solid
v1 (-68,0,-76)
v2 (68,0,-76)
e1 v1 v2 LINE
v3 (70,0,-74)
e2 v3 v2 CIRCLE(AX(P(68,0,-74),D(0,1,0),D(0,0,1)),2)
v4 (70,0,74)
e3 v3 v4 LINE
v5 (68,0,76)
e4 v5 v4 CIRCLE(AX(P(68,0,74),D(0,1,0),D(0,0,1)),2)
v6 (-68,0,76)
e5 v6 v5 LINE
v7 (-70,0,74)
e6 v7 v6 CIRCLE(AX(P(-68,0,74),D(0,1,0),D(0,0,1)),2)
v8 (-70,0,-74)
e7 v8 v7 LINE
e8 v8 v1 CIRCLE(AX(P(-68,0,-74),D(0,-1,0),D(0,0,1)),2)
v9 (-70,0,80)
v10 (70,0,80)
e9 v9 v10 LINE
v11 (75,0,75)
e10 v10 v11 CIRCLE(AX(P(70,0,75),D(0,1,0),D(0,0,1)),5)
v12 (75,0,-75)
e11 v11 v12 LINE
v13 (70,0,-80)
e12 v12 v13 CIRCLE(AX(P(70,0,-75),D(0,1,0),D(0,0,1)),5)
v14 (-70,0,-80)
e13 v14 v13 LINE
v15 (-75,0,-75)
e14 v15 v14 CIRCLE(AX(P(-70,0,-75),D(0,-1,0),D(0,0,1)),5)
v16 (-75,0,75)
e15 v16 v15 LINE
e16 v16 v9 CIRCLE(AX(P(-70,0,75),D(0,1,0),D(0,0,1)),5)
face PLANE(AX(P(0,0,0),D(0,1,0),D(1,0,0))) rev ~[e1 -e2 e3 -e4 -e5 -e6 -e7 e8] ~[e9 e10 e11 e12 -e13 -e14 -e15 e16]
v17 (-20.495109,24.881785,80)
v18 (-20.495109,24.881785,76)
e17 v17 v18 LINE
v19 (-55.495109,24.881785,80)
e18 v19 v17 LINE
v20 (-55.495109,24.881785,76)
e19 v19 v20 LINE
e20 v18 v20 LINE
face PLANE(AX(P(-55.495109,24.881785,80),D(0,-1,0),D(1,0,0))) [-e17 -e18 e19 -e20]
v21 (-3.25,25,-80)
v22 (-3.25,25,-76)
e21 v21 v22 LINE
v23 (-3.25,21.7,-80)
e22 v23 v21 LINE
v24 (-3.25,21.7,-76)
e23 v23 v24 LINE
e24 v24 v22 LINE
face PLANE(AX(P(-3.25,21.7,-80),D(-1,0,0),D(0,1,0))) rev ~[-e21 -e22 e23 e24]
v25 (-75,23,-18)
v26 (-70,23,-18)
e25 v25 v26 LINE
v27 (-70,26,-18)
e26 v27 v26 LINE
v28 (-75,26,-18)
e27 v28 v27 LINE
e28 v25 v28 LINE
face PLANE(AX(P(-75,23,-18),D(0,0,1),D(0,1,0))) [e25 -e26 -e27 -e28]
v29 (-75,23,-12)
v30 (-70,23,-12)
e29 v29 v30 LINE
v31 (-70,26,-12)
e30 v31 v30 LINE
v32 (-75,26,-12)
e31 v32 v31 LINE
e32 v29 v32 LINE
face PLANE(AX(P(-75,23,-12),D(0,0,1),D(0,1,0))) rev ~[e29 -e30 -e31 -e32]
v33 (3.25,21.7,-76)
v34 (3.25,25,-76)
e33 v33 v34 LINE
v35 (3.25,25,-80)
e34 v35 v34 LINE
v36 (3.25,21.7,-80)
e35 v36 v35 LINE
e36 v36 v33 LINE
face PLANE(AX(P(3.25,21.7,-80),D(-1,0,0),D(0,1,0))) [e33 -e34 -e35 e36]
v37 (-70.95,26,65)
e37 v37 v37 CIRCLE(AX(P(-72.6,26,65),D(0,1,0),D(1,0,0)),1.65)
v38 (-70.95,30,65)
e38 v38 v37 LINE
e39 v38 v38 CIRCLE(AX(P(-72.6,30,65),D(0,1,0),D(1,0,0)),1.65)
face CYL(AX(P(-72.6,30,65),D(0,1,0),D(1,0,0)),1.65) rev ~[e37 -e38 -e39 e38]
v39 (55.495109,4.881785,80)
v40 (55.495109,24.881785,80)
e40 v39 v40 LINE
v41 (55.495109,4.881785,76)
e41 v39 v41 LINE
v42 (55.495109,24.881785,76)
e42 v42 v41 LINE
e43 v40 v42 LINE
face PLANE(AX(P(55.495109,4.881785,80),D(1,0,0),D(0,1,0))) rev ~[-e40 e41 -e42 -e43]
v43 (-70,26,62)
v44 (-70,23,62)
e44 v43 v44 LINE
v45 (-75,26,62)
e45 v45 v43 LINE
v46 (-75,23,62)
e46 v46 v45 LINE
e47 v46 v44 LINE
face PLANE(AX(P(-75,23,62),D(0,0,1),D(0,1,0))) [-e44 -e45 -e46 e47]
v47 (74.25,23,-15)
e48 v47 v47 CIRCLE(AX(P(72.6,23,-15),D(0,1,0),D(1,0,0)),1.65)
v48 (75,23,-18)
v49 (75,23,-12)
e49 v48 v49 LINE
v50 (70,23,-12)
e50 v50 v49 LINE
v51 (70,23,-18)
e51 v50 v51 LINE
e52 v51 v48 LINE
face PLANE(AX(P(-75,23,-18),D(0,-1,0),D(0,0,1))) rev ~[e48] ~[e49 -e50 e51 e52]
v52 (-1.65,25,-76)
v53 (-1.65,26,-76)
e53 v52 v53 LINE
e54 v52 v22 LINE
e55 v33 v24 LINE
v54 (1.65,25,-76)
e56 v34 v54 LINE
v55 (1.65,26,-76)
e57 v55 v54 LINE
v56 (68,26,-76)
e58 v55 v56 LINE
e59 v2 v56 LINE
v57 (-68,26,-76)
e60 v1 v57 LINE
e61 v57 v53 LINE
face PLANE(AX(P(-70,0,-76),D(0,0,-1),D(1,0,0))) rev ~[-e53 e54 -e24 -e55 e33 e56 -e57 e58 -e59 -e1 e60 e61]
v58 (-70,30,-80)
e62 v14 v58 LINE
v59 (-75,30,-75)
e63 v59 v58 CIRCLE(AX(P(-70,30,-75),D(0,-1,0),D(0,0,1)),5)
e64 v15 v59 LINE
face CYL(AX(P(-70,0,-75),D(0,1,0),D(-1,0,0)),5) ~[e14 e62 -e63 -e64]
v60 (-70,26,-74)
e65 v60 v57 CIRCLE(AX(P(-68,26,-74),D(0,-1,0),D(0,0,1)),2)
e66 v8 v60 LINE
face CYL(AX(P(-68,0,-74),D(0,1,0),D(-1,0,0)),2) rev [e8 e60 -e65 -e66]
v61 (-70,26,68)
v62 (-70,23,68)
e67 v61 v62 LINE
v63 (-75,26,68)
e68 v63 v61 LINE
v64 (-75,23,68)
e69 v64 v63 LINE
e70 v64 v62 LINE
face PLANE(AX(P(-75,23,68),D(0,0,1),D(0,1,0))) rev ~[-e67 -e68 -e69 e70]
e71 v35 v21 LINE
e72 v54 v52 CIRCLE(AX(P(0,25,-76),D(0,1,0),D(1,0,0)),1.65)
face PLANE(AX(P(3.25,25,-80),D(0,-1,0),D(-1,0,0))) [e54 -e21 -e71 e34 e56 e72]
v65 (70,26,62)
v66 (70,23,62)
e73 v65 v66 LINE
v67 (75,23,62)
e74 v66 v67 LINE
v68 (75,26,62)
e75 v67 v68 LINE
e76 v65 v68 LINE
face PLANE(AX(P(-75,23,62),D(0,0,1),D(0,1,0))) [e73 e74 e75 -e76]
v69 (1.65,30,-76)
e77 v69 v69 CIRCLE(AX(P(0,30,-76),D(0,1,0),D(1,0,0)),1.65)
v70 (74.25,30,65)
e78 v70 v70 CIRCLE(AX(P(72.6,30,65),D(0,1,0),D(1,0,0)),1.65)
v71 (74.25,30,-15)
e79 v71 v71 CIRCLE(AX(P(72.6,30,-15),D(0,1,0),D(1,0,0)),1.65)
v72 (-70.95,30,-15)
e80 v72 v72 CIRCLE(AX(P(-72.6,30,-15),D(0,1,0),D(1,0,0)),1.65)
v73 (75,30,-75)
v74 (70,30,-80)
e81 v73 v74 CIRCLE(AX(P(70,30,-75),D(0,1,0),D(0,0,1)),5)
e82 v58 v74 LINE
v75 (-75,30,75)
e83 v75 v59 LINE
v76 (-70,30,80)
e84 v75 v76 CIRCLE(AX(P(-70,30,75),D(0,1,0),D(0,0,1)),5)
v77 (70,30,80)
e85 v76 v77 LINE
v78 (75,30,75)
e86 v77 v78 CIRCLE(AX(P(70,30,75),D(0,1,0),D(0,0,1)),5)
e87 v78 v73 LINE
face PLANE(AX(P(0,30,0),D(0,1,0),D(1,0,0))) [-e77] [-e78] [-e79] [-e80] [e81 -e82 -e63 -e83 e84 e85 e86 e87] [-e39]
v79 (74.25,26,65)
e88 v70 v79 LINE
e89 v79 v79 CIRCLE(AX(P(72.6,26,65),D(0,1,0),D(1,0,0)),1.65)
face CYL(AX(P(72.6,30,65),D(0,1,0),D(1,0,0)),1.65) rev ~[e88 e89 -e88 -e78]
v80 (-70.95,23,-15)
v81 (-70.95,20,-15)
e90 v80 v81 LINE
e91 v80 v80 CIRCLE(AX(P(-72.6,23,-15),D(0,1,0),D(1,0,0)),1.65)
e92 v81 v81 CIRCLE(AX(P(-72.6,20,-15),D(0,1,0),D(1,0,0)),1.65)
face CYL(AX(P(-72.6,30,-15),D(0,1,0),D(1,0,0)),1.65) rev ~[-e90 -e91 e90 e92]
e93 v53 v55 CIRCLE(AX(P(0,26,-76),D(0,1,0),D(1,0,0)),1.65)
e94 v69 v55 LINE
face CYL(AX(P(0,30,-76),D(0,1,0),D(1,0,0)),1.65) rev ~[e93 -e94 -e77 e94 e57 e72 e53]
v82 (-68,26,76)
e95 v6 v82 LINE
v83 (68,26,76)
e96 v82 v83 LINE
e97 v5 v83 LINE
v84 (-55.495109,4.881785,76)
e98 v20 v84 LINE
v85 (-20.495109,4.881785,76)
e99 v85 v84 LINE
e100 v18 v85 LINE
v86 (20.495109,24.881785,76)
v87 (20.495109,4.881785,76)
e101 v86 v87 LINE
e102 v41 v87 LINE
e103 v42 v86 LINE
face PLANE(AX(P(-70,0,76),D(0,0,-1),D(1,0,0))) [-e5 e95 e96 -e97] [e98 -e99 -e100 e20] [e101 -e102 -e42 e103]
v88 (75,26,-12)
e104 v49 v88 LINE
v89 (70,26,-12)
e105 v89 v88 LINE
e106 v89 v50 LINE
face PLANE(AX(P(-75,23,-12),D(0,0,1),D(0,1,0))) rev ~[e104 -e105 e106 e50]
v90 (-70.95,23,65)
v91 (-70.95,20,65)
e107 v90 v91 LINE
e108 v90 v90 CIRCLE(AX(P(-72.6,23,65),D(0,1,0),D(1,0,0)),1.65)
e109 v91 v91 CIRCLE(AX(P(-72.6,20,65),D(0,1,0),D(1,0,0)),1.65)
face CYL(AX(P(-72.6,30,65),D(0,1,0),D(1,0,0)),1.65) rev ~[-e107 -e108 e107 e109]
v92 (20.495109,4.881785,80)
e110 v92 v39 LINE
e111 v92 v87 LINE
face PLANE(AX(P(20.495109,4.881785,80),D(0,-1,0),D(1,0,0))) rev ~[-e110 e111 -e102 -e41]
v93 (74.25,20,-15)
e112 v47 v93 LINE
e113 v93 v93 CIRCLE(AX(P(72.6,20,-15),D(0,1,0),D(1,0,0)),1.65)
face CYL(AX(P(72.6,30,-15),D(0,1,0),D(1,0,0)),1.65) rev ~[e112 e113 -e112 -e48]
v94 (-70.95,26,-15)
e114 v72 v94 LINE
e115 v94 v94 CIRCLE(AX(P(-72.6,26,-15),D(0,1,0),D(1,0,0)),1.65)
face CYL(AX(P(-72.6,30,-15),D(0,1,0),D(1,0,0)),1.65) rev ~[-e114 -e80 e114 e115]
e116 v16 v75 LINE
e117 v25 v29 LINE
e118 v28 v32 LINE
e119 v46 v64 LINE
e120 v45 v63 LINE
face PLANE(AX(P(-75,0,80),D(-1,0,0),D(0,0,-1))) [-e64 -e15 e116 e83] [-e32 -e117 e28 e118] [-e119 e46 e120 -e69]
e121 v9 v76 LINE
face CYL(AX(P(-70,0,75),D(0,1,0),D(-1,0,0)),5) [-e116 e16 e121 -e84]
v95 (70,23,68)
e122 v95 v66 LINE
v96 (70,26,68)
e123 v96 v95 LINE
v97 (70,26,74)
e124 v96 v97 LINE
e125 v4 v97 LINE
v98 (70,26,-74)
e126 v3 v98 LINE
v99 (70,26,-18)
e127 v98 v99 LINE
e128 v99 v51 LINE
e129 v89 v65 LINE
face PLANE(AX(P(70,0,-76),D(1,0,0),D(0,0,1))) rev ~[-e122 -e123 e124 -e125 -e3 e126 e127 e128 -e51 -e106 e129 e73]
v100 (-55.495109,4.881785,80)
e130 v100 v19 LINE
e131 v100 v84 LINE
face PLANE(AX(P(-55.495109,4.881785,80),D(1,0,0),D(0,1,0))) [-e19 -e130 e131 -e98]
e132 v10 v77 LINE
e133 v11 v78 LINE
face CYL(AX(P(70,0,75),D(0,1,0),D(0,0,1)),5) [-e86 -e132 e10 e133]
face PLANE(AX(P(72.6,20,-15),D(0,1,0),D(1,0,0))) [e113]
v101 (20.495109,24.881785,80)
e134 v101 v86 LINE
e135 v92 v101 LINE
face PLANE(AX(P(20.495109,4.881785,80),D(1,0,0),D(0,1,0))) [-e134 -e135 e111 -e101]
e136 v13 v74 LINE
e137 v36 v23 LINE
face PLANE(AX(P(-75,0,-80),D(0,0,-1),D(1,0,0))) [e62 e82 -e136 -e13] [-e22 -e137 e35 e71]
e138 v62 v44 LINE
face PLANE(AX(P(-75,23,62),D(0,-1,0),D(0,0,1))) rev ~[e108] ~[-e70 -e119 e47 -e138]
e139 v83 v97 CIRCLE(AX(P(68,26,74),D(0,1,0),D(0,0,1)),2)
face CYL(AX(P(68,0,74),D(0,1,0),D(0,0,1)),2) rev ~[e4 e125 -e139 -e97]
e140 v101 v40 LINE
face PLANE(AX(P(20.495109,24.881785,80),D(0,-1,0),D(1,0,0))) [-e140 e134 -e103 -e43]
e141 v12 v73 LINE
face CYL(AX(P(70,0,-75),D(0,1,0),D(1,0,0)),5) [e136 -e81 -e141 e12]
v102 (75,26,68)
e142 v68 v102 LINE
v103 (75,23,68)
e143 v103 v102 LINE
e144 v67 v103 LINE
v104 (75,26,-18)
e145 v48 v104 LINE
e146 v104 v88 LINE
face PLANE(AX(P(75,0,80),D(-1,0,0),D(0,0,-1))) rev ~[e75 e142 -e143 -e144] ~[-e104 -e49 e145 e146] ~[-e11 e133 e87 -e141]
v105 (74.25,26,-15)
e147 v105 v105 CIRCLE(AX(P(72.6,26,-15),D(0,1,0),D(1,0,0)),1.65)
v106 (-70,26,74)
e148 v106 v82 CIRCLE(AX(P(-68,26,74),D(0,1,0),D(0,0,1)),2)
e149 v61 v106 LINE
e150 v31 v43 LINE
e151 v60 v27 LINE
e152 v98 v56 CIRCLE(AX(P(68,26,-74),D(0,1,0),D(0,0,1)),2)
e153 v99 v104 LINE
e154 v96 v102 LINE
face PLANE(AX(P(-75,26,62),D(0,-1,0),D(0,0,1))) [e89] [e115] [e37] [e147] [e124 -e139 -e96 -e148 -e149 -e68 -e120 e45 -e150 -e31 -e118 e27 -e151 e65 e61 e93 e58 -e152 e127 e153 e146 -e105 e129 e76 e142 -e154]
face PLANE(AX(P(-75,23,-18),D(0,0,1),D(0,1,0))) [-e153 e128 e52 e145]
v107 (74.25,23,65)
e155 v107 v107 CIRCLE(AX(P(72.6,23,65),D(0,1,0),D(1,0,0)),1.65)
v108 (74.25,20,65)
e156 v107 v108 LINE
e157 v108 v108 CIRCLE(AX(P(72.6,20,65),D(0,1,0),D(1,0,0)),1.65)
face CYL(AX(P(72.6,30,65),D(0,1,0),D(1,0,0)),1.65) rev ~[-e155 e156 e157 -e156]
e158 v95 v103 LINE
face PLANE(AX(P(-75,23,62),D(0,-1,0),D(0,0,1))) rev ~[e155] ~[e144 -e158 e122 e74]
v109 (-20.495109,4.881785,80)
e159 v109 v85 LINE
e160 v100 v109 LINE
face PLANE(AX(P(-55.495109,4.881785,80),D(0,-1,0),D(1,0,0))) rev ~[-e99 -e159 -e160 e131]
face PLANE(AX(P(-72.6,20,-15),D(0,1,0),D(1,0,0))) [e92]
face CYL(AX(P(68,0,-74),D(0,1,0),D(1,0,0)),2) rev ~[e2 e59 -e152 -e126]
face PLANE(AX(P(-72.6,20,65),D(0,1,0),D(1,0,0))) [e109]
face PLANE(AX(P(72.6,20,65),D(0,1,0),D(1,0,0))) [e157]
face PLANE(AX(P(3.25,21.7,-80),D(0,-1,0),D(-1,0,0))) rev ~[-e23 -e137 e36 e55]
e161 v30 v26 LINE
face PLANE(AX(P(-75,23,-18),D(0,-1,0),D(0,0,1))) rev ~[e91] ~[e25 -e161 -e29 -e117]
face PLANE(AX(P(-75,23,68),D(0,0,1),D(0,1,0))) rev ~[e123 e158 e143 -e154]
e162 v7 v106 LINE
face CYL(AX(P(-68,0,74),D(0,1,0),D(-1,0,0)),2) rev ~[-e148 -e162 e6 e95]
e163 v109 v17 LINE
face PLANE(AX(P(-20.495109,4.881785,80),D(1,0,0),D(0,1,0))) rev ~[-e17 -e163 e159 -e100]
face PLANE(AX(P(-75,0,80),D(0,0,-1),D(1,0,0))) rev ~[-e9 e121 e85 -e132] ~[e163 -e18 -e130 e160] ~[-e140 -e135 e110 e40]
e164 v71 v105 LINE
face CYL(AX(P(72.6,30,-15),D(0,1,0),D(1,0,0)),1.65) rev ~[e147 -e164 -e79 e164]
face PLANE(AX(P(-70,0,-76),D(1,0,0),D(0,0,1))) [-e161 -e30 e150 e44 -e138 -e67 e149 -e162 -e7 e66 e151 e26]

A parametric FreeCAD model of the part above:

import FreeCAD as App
import Part
import Sketcher

V = App.Vector


def edges_at(feature, points):
    """Names of the edges that pass closest to the given points."""
    edges = feature.Shape.Edges
    near = lambda p: min(range(len(edges)), key=lambda i: edges[i].distToShape(Part.Vertex(*p))[0])
    return sorted({f"Edge{near(p) + 1}" for p in points})


def add_polygon(sketch, points):
    """Adds a closed chain of lines whose ends are joined by coincident constraints."""
    first, n = sketch.GeometryCount, len(points)
    for a, b in zip(points, points[1:] + points[:1]):
        sketch.addGeometry(Part.LineSegment(App.Vector(*a, 0), App.Vector(*b, 0)), False)
    for i in range(n):
        sketch.addConstraint(Sketcher.Constraint("Coincident", first + i, 2, first + (i + 1) % n, 1))

doc = App.newDocument("Part")
body = doc.addObject("PartDesign::Body", "Body")

sketch1 = body.newObject("Sketcher::SketchObject", "Sketch")
sketch1.AttachmentSupport = (doc.getObject("XZ_Plane"), [""])
sketch1.MapMode = "FlatFace"
add_polygon(sketch1, [(-75, -80), (-75, 80), (75, 80), (75, -80)])
sketch1.addConstraint([
    Sketcher.Constraint("Vertical", 0),
    Sketcher.Constraint("Horizontal", 1),
    Sketcher.Constraint("Vertical", 2),
    Sketcher.Constraint("Horizontal", 3),
    Sketcher.Constraint("Symmetric", 0, 2, 2, 2, -1, 1),
    Sketcher.Constraint("DistanceX", 1, 1, 1, 2, 150.0),
    Sketcher.Constraint("DistanceY", 0, 1, 0, 2, 160.0),
])
pad1 = body.newObject("PartDesign::Pad", "Pad")
pad1.Profile = sketch1
pad1.Length = 30
pad1.Reversed = True
doc.recompute()

fillet = body.newObject("PartDesign::Fillet", "Fillet")
fillet.Base = (pad1, edges_at(pad1, [
    (75, 15, 80),
    (-75, 15, 80),
    (-75, 15, -80),
    (75, 15, -80),
]))
fillet.Radius = 5

sketch2 = body.newObject("Sketcher::SketchObject", "Sketch001")
sketch2.AttachmentSupport = (doc.getObject("XZ_Plane"), [""])
sketch2.MapMode = "FlatFace"
add_polygon(sketch2, [(-70, 76), (-70, -76), (70, -76), (70, 76)])
sketch2.addConstraint([
    Sketcher.Constraint("Vertical", 0),
    Sketcher.Constraint("Horizontal", 1),
    Sketcher.Constraint("Vertical", 2),
    Sketcher.Constraint("Horizontal", 3),
    Sketcher.Constraint("Symmetric", 0, 2, 2, 2, -1, 1),
    Sketcher.Constraint("DistanceX", 1, 1, 1, 2, 140.0),
    Sketcher.Constraint("DistanceY", 0, 2, 0, 1, 152.0),
])
pocket1 = body.newObject("PartDesign::Pocket", "Pocket")
pocket1.Profile = sketch2
pocket1.Length = 26

sketch3 = body.newObject("Sketcher::SketchObject", "Sketch002")
sketch3.AttachmentSupport = (doc.getObject("YZ_Plane"), [""])
sketch3.MapMode = "FlatFace"
sketch3.AttachmentOffset = App.Placement(V(0, 0, -75), App.Rotation())
add_polygon(sketch3, [(26, 62), (23, 62), (23, 68), (26, 68)])
add_polygon(sketch3, [(26, -18), (23, -18), (23, -12), (26, -12)])
sketch3.addConstraint([
    Sketcher.Constraint("Horizontal", 0),
    Sketcher.Constraint("Vertical", 1),
    Sketcher.Constraint("Horizontal", 2),
    Sketcher.Constraint("Vertical", 3),
    Sketcher.Constraint("Horizontal", 4),
    Sketcher.Constraint("Vertical", 5),
    Sketcher.Constraint("Horizontal", 6),
    Sketcher.Constraint("Vertical", 7),
    Sketcher.Constraint("Vertical", 1, 2, 4, 2),
    Sketcher.Constraint("Vertical", 3, 2, 6, 2),
    Sketcher.Constraint("Equal", 3, 5),
    Sketcher.Constraint("DistanceX", 0, 2, 0, 1, 3.0),
    Sketcher.Constraint("DistanceY", 1, 1, 1, 2, 6.0),
    Sketcher.Constraint("DistanceX", -1, 1, 0, 2, 23.0),
    Sketcher.Constraint("DistanceY", -1, 1, 0, 2, 62.0),
    Sketcher.Constraint("DistanceY", 4, 2, -1, 1, 18.0),
])
pocket2 = body.newObject("PartDesign::Pocket", "Pocket001")
pocket2.Profile = sketch3
pocket2.Type = "ThroughAll"
pocket2.Reversed = True
doc.recompute()

fillet2 = body.newObject("PartDesign::Fillet", "Fillet001")
fillet2.Base = (pocket2, edges_at(pocket2, [
    (-70, 13, -76),
    (-70, 13, 76),
    (70, 13, 76),
    (70, 13, -76),
]))
fillet2.Radius = 2

sketch4 = body.newObject("Sketcher::SketchObject", "Sketch003")
sketch4.AttachmentSupport = (doc.getObject("XZ_Plane"), [""])
sketch4.MapMode = "FlatFace"
sketch4.AttachmentOffset = App.Placement(V(0, 0, -30), App.Rotation())
sketch4.addGeometry(Part.Circle(V(0, -76, 0), V(0, 0, 1), 1.6), False)
sketch4.addConstraint([
    Sketcher.Constraint("PointOnObject", 0, 3, -2),
    Sketcher.Constraint("Diameter", 0, 3.3),
    Sketcher.Constraint("DistanceY", 0, 3, -1, 1, 76.0),
])
pocket3 = body.newObject("PartDesign::Pocket", "Pocket002")
pocket3.Profile = sketch4
pocket3.Length = 8
pocket3.Reversed = True

sketch5 = body.newObject("Sketcher::SketchObject", "Sketch004")
sketch5.AttachmentSupport = (doc.getObject("XY_Plane"), [""])
sketch5.MapMode = "FlatFace"
sketch5.AttachmentOffset = App.Placement(V(0, 0, -80), App.Rotation())
add_polygon(sketch5, [(3.2, 25), (3.2, 21.7), (-3.2, 21.7), (-3.2, 25)])
sketch5.addConstraint([
    Sketcher.Constraint("Vertical", 0),
    Sketcher.Constraint("Horizontal", 1),
    Sketcher.Constraint("Vertical", 2),
    Sketcher.Constraint("Horizontal", 3),
    Sketcher.Constraint("DistanceX", 1, 2, 1, 1, 6.5),
    Sketcher.Constraint("DistanceY", 0, 2, 0, 1, 3.3),
    Sketcher.Constraint("DistanceY", -1, 1, 2, 2, 25.0),
    Sketcher.Constraint("DistanceX", -1, 1, 0, 2, 3.25),
])
pocket4 = body.newObject("PartDesign::Pocket", "Pocket003")
pocket4.Profile = sketch5
pocket4.Length = 15
pocket4.Reversed = True

sketch6 = body.newObject("Sketcher::SketchObject", "Sketch005")
sketch6.AttachmentSupport = (doc.getObject("XY_Plane"), [""])
sketch6.MapMode = "FlatFace"
sketch6.AttachmentOffset = App.Placement(V(0, 0, 80), App.Rotation())
add_polygon(sketch6, [(20, 25), (20, 5), (55, 5), (55, 25)])
add_polygon(sketch6, [(-55, 25), (-55, 5), (-20, 5), (-20, 25)])
sketch6.addConstraint([
    Sketcher.Constraint("Vertical", 0),
    Sketcher.Constraint("Horizontal", 1),
    Sketcher.Constraint("Vertical", 2),
    Sketcher.Constraint("Horizontal", 3),
    Sketcher.Constraint("Vertical", 4),
    Sketcher.Constraint("Horizontal", 5),
    Sketcher.Constraint("Vertical", 6),
    Sketcher.Constraint("Horizontal", 7),
    Sketcher.Constraint("Symmetric", 1, 2, 4, 2, -2),
    Sketcher.Constraint("Symmetric", 3, 2, 6, 2, -2),
    Sketcher.Constraint("DistanceX", 1, 1, 1, 2, 35.0),
    Sketcher.Constraint("DistanceY", 0, 2, 0, 1, 20.0),
    Sketcher.Constraint("DistanceX", -1, 1, 0, 2, 20.495109),
    Sketcher.Constraint("DistanceY", -1, 1, 0, 2, 4.881785),
])
pocket5 = body.newObject("PartDesign::Pocket", "Pocket004")
pocket5.Profile = sketch6
pocket5.Length = 40

sketch7 = body.newObject("Sketcher::SketchObject", "Sketch006")
sketch7.AttachmentSupport = (doc.getObject("XZ_Plane"), [""])
sketch7.MapMode = "FlatFace"
sketch7.AttachmentOffset = App.Placement(V(0, 0, -30), App.Rotation())
sketch7.addGeometry([
    Part.Circle(V(-72.6, 65, 0), V(0, 0, 1), 1.6),
    Part.Circle(V(72.6, 65, 0), V(0, 0, 1), 1.6),
    Part.Circle(V(-72.6, -15, 0), V(0, 0, 1), 1.6),
    Part.Circle(V(72.6, -15, 0), V(0, 0, 1), 1.6),
], False)
sketch7.addConstraint([
    Sketcher.Constraint("Equal", 0, 1),
    Sketcher.Constraint("Equal", 1, 2),
    Sketcher.Constraint("Equal", 2, 3),
    Sketcher.Constraint("Symmetric", 0, 3, 1, 3, -2),
    Sketcher.Constraint("Symmetric", 2, 3, 3, 3, -2),
    Sketcher.Constraint("Vertical", 0, 3, 2, 3),
    Sketcher.Constraint("Diameter", 0, 3.3),
    Sketcher.Constraint("DistanceY", -1, 1, 0, 3, 65.0),
    Sketcher.Constraint("DistanceY", 2, 3, -1, 1, 15.0),
    Sketcher.Constraint("DistanceX", 0, 3, -1, 1, 72.6),
])
pocket6 = body.newObject("PartDesign::Pocket", "Pocket005")
pocket6.Profile = sketch7
pocket6.Length = 10
pocket6.Reversed = True

doc.recompute()
